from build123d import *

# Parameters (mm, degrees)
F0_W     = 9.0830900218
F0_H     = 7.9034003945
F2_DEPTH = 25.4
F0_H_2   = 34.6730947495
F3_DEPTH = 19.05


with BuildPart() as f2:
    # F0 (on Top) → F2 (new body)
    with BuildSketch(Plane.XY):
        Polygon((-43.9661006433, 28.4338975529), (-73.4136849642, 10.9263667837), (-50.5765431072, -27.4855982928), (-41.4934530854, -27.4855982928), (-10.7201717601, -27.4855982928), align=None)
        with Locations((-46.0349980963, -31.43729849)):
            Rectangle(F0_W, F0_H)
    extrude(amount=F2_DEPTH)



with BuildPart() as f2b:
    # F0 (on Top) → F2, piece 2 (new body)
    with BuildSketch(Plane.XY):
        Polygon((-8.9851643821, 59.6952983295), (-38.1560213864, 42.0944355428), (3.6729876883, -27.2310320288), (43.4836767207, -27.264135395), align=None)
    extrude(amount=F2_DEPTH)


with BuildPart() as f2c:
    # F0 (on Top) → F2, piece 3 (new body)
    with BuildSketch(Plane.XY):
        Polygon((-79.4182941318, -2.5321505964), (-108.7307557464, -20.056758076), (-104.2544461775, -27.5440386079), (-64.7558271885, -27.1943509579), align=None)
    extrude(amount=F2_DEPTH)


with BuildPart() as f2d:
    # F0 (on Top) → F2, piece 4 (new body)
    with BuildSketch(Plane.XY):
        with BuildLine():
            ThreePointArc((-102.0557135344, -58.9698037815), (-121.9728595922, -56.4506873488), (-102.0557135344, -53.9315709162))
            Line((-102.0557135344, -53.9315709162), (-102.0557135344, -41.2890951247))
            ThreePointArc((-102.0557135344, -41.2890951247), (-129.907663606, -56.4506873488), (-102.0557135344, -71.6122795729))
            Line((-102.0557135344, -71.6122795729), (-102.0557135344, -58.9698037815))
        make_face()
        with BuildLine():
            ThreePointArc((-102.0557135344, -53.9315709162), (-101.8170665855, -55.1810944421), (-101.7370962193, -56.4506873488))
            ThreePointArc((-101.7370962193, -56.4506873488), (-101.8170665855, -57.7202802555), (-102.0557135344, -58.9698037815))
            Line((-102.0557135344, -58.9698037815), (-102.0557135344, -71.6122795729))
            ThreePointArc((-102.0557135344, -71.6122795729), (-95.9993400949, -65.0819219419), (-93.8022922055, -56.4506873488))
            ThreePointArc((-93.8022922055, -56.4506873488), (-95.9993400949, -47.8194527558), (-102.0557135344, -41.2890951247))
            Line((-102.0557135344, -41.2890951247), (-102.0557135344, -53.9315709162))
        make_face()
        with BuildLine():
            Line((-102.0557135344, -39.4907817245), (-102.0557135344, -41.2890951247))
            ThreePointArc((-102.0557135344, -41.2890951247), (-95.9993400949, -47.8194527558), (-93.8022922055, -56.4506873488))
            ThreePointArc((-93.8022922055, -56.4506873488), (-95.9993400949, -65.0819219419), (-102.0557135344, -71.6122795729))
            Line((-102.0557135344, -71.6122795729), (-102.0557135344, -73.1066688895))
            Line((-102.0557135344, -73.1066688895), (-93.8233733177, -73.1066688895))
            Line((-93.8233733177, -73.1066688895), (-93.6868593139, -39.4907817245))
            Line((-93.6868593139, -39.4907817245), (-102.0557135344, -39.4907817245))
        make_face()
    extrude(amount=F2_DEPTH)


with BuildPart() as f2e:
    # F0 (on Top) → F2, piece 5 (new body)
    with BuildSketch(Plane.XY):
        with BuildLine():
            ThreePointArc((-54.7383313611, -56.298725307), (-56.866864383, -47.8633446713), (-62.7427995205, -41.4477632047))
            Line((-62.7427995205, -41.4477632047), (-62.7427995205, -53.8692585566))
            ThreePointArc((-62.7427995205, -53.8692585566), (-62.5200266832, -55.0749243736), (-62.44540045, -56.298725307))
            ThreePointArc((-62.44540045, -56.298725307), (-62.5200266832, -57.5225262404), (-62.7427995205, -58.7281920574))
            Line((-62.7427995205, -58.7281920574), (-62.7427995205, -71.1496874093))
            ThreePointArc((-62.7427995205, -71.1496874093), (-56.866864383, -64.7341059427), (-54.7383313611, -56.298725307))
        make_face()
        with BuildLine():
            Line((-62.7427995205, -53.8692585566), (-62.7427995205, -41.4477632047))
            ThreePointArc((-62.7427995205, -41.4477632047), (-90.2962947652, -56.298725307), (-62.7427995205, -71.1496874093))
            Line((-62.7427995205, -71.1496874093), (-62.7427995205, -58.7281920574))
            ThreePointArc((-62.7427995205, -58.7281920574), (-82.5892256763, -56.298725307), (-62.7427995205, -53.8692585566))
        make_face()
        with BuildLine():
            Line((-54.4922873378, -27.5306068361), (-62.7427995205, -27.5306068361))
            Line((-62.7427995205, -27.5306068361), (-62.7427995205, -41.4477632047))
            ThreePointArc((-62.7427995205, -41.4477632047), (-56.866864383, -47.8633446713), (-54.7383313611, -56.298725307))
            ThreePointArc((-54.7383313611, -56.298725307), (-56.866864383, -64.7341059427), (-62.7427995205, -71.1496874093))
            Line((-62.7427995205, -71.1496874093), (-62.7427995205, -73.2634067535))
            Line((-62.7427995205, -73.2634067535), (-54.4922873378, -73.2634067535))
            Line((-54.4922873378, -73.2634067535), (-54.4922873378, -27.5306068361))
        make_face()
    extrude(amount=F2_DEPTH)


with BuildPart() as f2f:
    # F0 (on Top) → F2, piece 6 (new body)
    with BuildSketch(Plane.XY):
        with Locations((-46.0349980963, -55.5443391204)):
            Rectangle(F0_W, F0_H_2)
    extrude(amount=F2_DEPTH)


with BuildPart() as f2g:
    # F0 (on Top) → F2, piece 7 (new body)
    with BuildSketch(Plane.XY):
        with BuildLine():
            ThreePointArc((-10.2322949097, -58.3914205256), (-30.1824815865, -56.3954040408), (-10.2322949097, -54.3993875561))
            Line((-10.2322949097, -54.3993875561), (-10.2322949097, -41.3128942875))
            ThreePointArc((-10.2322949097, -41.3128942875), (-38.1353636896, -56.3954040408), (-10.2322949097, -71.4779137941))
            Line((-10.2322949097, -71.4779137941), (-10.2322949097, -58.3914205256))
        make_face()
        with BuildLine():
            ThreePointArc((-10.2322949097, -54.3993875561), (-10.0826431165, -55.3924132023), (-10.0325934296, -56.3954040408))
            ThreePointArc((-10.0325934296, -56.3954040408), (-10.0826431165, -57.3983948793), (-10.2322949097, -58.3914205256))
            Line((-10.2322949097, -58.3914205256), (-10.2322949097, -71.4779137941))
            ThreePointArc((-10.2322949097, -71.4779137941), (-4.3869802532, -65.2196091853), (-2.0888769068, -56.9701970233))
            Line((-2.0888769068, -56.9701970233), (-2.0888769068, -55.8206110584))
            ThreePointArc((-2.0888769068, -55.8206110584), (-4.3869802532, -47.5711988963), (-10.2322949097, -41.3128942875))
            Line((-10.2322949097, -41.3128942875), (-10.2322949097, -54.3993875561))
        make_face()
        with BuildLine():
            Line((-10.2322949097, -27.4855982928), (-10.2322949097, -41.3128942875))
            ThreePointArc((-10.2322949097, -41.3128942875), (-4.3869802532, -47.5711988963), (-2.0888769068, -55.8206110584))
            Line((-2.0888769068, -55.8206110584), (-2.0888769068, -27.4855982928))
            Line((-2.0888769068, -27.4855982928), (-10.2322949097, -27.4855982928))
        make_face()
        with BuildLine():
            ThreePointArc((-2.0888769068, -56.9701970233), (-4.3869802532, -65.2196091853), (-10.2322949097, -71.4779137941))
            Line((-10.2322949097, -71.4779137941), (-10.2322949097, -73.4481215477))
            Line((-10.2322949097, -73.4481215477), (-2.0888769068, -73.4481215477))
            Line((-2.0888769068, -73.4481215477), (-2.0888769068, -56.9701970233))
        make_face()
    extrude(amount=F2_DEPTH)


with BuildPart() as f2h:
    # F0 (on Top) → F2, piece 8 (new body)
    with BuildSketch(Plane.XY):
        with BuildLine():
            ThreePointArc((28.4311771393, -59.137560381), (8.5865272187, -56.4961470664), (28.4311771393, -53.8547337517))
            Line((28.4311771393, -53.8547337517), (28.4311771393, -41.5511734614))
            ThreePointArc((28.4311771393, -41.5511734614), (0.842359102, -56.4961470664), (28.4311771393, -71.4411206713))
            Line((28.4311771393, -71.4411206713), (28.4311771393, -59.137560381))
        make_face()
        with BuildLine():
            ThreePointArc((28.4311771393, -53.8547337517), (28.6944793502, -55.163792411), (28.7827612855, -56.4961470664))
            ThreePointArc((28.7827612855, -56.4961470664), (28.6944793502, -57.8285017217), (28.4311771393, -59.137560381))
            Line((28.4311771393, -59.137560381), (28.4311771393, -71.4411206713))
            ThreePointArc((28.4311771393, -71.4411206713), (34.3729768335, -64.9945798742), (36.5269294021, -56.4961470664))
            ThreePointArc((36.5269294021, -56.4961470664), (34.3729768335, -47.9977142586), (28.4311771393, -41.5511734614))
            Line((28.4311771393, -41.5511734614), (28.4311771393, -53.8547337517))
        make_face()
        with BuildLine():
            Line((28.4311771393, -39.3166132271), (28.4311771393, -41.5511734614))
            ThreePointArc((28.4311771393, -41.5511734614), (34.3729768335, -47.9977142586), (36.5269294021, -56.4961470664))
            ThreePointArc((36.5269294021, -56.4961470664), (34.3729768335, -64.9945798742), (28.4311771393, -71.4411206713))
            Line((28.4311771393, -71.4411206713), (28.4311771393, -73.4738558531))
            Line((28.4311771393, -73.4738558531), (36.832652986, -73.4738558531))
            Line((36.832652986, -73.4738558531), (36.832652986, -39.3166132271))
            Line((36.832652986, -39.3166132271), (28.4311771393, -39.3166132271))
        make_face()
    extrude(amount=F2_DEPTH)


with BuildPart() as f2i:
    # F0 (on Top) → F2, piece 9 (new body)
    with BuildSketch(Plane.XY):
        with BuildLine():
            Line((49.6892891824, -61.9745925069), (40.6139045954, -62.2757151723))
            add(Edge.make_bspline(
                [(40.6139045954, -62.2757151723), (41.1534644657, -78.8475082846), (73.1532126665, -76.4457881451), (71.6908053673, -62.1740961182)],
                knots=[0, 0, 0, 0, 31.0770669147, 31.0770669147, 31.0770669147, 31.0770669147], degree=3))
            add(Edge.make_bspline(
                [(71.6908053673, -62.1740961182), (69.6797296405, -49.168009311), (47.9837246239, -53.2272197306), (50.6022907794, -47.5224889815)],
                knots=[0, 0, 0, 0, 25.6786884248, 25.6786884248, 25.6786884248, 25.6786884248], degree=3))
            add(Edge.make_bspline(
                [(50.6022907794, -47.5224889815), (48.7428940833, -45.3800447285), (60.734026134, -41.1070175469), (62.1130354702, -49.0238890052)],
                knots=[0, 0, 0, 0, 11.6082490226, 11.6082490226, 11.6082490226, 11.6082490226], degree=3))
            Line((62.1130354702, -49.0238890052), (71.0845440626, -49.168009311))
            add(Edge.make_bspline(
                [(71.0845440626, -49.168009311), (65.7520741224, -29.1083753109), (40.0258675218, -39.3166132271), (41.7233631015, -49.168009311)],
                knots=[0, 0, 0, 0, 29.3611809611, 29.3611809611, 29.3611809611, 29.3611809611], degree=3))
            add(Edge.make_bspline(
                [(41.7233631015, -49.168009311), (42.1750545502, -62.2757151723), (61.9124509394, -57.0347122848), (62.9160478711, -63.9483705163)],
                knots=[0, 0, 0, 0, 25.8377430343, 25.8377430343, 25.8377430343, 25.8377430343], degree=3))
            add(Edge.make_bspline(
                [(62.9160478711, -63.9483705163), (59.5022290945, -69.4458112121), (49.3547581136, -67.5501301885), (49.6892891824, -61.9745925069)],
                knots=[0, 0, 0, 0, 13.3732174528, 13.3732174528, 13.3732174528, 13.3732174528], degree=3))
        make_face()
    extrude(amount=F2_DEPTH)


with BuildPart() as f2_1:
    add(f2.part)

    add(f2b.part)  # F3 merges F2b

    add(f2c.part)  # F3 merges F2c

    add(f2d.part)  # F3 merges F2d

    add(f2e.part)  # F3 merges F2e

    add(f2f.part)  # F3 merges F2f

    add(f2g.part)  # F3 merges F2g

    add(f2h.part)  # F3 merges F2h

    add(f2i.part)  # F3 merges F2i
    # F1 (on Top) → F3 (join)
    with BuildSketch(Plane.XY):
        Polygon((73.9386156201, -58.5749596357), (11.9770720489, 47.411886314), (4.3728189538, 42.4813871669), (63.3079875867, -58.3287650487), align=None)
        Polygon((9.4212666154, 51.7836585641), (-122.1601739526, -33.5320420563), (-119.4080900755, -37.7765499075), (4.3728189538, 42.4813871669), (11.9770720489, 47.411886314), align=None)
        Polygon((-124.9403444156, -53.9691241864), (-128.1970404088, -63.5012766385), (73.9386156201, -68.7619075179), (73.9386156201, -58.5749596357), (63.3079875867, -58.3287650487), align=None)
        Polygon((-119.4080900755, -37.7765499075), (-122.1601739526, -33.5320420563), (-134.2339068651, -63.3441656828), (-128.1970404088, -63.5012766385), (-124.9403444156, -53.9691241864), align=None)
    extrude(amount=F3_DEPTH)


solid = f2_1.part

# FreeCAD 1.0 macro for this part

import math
import FreeCAD as App
import Part
import Sketcher
Q = App.Units.Quantity


def add_polygon(sketch, points):
    """Adds a closed chain of lines whose ends are joined by coincident constraints."""
    first, n = sketch.GeometryCount, len(points)
    for a, b in zip(points, points[1:] + points[:1]):
        sketch.addGeometry(Part.LineSegment(App.Vector(*a, 0), App.Vector(*b, 0)), False)
    for i in range(n):
        sketch.addConstraint(Sketcher.Constraint("Coincident", first + i, 2, first + (i + 1) % n, 1))

doc = App.newDocument("Part")
body = doc.addObject("PartDesign::Body", "Body")

# Sketch on XY plane
sketch1 = doc.addObject("Sketcher::SketchObject", "Sketch")
body.addObject(sketch1)
sketch1.AttachmentSupport = (doc.XY_Plane, [""])
sketch1.MapMode = "FlatFace"
add_polygon(sketch1, [(-44, 28), (-73, 11), (-51, -27), (-51, -35), (-41, -35), (-41, -27), (-11, -27)])  # lines 0-6
sketch1.addConstraint([
    Sketcher.Constraint("Vertical", 2),
    Sketcher.Constraint("Horizontal", 3),
    Sketcher.Constraint("Vertical", 4),
    Sketcher.Constraint("Horizontal", 5),
    Sketcher.Constraint("Perpendicular", 0, 1),
    Sketcher.Constraint("Parallel", 1, 6),
    Sketcher.Constraint("Horizontal", 1, 2, 4, 2),
    Sketcher.Constraint("DistanceY", 2, 2, 2, 1, 7.9034),
    Sketcher.Constraint("DistanceX", 0, 2, 1, 2, Q("0.8991001 in")),
    Sketcher.Constraint("DistanceX", 3, 1, 3, 2, 9.08309),
    Sketcher.Constraint("DistanceX", 5, 1, 5, 2, 30.773281),
    Sketcher.Constraint("DistanceY", 1, 2, -1, 1, 27.485598),
    Sketcher.Constraint("DistanceX", 6, 2, -1, 1, 43.966101),
    Sketcher.Constraint("Distance", 6, 65.05599),
])
pad1 = doc.addObject("PartDesign::Pad", "Pad")
body.addObject(pad1)
pad1.Profile = sketch1
pad1.Length = Q("1 in")
body2 = doc.addObject("PartDesign::Body", "Body001")

# Sketch on XY plane
sketch2 = doc.addObject("Sketcher::SketchObject", "Sketch001")
body2.addObject(sketch2)
sketch2.AttachmentSupport = (doc.getObject("XY_Plane001"), [""])
sketch2.MapMode = "FlatFace"
add_polygon(sketch2, [(-9, 60), (-38, 42), (4, -27), (43, -27)])  # lines 0-3
sketch2.addConstraint([
    Sketcher.Constraint("Perpendicular", 0, 1),
    Sketcher.Constraint("Parallel", 1, 3),
    Sketcher.Constraint("DistanceY", -1, 1, 3, 2, 59.695298),
    Sketcher.Constraint("DistanceX", 0, 2, 2, 2, 81.639698),
    Sketcher.Constraint("DistanceX", 0, 2, -1, 1, 38.156021),
    Sketcher.Constraint("DistanceX", 0, 2, 1, 2, 41.829009),
    Sketcher.Constraint("DistanceY", 2, 2, 0, 2, 69.358571),
    Sketcher.Constraint("DistanceY", 1, 2, 3, 2, 86.92633),
])
pad2 = doc.addObject("PartDesign::Pad", "Pad001")
body2.addObject(pad2)
pad2.Profile = sketch2
pad2.Length = Q("1 in")
body3 = doc.addObject("PartDesign::Body", "Body002")

# Sketch on XY plane
sketch3 = doc.addObject("Sketcher::SketchObject", "Sketch002")
body3.addObject(sketch3)
sketch3.AttachmentSupport = (doc.getObject("XY_Plane002"), [""])
sketch3.MapMode = "FlatFace"
add_polygon(sketch3, [(-79, -3), (-109, -20), (-104, -28), (-65, -27)])  # lines 0-3
sketch3.addConstraint([
    Sketcher.Constraint("Perpendicular", 0, 1),
    Sketcher.Constraint("DistanceY", 2, 2, 3, 2, 24.6622),
    Sketcher.Constraint("DistanceY", 0, 2, -1, 1, 20.056758),
    Sketcher.Constraint("DistanceY", 1, 2, -1, 1, 27.544039),
    Sketcher.Constraint("DistanceY", 2, 2, -1, 1, 27.194351),
    Sketcher.Constraint("DistanceX", 0, 2, 1, 2, 4.47631),
    Sketcher.Constraint("DistanceX", 1, 2, 2, 2, 39.498619),
    Sketcher.Constraint("DistanceX", 0, 2, -1, 1, 108.730756),
])
pad3 = doc.addObject("PartDesign::Pad", "Pad002")
body3.addObject(pad3)
pad3.Profile = sketch3
pad3.Length = Q("1 in")
body4 = doc.addObject("PartDesign::Body", "Body003")

# Sketch on XY plane
sketch4 = doc.addObject("Sketcher::SketchObject", "Sketch003")
body4.addObject(sketch4)
sketch4.AttachmentSupport = (doc.getObject("XY_Plane003"), [""])
sketch4.MapMode = "FlatFace"
sketch4.addGeometry([
    Part.ArcOfCircle(Part.Circle(App.Vector(-111.9, -56.5, 0), App.Vector(0, 0, 1), 18.1), math.radians(57), math.radians(303)),  # 0
    Part.LineSegment(App.Vector(-102.1, -71.6, 0), App.Vector(-102.1, -73.1, 0)),  # 1
    Part.LineSegment(App.Vector(-102.1, -73.1, 0), App.Vector(-93.8, -73.1, 0)),  # 2
    Part.LineSegment(App.Vector(-93.8, -73.1, 0), App.Vector(-93.7, -39.5, 0)),  # 3
    Part.LineSegment(App.Vector(-93.7, -39.5, 0), App.Vector(-102.1, -39.5, 0)),  # 4
    Part.LineSegment(App.Vector(-102.1, -39.5, 0), App.Vector(-102.1, -41.3, 0)),  # 5
    Part.ArcOfCircle(Part.Circle(App.Vector(-111.9, -56.5, 0), App.Vector(0, 0, 1), 10.1), math.radians(14), math.radians(346)),  # 6
    Part.ArcOfCircle(Part.Circle(App.Vector(-111.9, -56.5, 0), App.Vector(0, 0, 1), 10.1), math.radians(0), math.radians(14.42)),  # 7
    Part.ArcOfCircle(Part.Circle(App.Vector(-111.9, -56.5, 0), App.Vector(0, 0, 1), 10.1), math.radians(-14.42), math.radians(0)),  # 8
], False)
sketch4.addConstraint([
    Sketcher.Constraint("Coincident", 0, 2, 1, 1),
    Sketcher.Constraint("Coincident", 1, 2, 2, 1),
    Sketcher.Constraint("Coincident", 2, 2, 3, 1),
    Sketcher.Constraint("Coincident", 3, 2, 4, 1),
    Sketcher.Constraint("Coincident", 4, 2, 5, 1),
    Sketcher.Constraint("Coincident", 5, 2, 0, 1),
    Sketcher.Constraint("Tangent", 6, 1, 7, 2),
    Sketcher.Constraint("Tangent", 7, 1, 8, 2),
    Sketcher.Constraint("Tangent", 8, 1, 6, 2),
    Sketcher.Constraint("Vertical", 1),
    Sketcher.Constraint("Horizontal", 2),
    Sketcher.Constraint("Horizontal", 4),
    Sketcher.Constraint("Vertical", 5),
    Sketcher.Constraint("Coincident", 6, 3, 0, 3),
    Sketcher.Constraint("Horizontal", 8, 3, 7, 1),
    Sketcher.Constraint("Vertical", 1, 2, 4, 2),
    Sketcher.Constraint("Vertical", 5, 2, 6, 1),
    Sketcher.Constraint("Vertical", 6, 1, 8, 1),
    Sketcher.Constraint("Radius", 6, 10.117882),
    Sketcher.Constraint("Radius", 0, 18.052686),
    Sketcher.Constraint("DistanceX", 2, 1, 2, 2, 8.23234),
    Sketcher.Constraint("DistanceY", 1, 2, 1, 1, 1.494389),
    Sketcher.Constraint("DistanceX", 4, 2, 4, 1, 8.368854),
    Sketcher.Constraint("DistanceY", 5, 2, 5, 1, 1.798313),
    Sketcher.Constraint("DistanceY", 0, 2, -1, 1, 71.61228),
    Sketcher.Constraint("DistanceX", 3, 2, -1, 1, 93.686859),
    Sketcher.Constraint("DistanceY", 3, 2, -1, 1, 39.490782),
])
pad4 = doc.addObject("PartDesign::Pad", "Pad003")
body4.addObject(pad4)
pad4.Profile = sketch4
pad4.Length = Q("1 in")
body5 = doc.addObject("PartDesign::Body", "Body004")

# Sketch on XY plane
sketch5 = doc.addObject("Sketcher::SketchObject", "Sketch004")
body5.addObject(sketch5)
sketch5.AttachmentSupport = (doc.getObject("XY_Plane004"), [""])
sketch5.MapMode = "FlatFace"
sketch5.addGeometry([
    Part.ArcOfCircle(Part.Circle(App.Vector(-72.5, -56.3, 0), App.Vector(0, 0, 1), 17.8), math.radians(57), math.radians(303)),  # 0
    Part.LineSegment(App.Vector(-62.7, -71.1, 0), App.Vector(-62.7, -73.3, 0)),  # 1
    Part.LineSegment(App.Vector(-62.7, -73.3, 0), App.Vector(-54.5, -73.3, 0)),  # 2
    Part.LineSegment(App.Vector(-54.5, -73.3, 0), App.Vector(-54.5, -27.5, 0)),  # 3
    Part.LineSegment(App.Vector(-54.5, -27.5, 0), App.Vector(-62.7, -27.5, 0)),  # 4
    Part.LineSegment(App.Vector(-62.7, -27.5, 0), App.Vector(-62.7, -41.4, 0)),  # 5
    Part.ArcOfCircle(Part.Circle(App.Vector(-72.5, -56.3, 0), App.Vector(0, 0, 1), 10.1), math.radians(0), math.radians(13.96)),  # 6
    Part.ArcOfCircle(Part.Circle(App.Vector(-72.5, -56.3, 0), App.Vector(0, 0, 1), 10.1), math.radians(-13.96), math.radians(0)),  # 7
    Part.ArcOfCircle(Part.Circle(App.Vector(-72.5, -56.3, 0), App.Vector(0, 0, 1), 10.1), math.radians(14), math.radians(346)),  # 8
], False)
sketch5.addConstraint([
    Sketcher.Constraint("Coincident", 0, 2, 1, 1),
    Sketcher.Constraint("Coincident", 1, 2, 2, 1),
    Sketcher.Constraint("Coincident", 2, 2, 3, 1),
    Sketcher.Constraint("Coincident", 3, 2, 4, 1),
    Sketcher.Constraint("Coincident", 4, 2, 5, 1),
    Sketcher.Constraint("Coincident", 5, 2, 0, 1),
    Sketcher.Constraint("Tangent", 6, 1, 7, 2),
    Sketcher.Constraint("Tangent", 7, 1, 8, 2),
    Sketcher.Constraint("Tangent", 8, 1, 6, 2),
    Sketcher.Constraint("Vertical", 1),
    Sketcher.Constraint("Horizontal", 2),
    Sketcher.Constraint("Vertical", 3),
    Sketcher.Constraint("Horizontal", 4),
    Sketcher.Constraint("Vertical", 5),
    Sketcher.Constraint("Coincident", 6, 3, 0, 3),
    Sketcher.Constraint("Horizontal", 8, 3, 6, 1),
    Sketcher.Constraint("Vertical", 1, 2, 4, 2),
    Sketcher.Constraint("Vertical", 5, 2, 7, 1),
    Sketcher.Constraint("Vertical", 7, 1, 8, 1),
    Sketcher.Constraint("Radius", 0, 17.778982),
    Sketcher.Constraint("DistanceY", 3, 1, 3, 2, 45.7328),
    Sketcher.Constraint("Radius", 6, 10.071913),
    Sketcher.Constraint("DistanceY", 1, 2, 1, 1, 2.113719),
    Sketcher.Constraint("DistanceX", 0, 2, -1, 1, 62.7428),
    Sketcher.Constraint("DistanceX", 6, 1, -1, 1, 62.4454),
    Sketcher.Constraint("DistanceX", 2, 1, 2, 2, 8.250512),
    Sketcher.Constraint("DistanceY", 8, 1, -1, 1, 53.869259),
])
pad5 = doc.addObject("PartDesign::Pad", "Pad004")
body5.addObject(pad5)
pad5.Profile = sketch5
pad5.Length = Q("1 in")
body6 = doc.addObject("PartDesign::Body", "Body005")

# Sketch on XY plane
sketch6 = doc.addObject("Sketcher::SketchObject", "Sketch005")
body6.addObject(sketch6)
sketch6.AttachmentSupport = (doc.getObject("XY_Plane005"), [""])
sketch6.MapMode = "FlatFace"
add_polygon(sketch6, [(-51, -38), (-51, -73), (-41, -73), (-41, -38)])  # lines 0-3
sketch6.addConstraint([
    Sketcher.Constraint("Vertical", 0),
    Sketcher.Constraint("Horizontal", 1),
    Sketcher.Constraint("Vertical", 2),
    Sketcher.Constraint("Horizontal", 3),
    Sketcher.Constraint("DistanceX", 1, 1, 1, 2, 9.08309),
    Sketcher.Constraint("DistanceY", 0, 2, 0, 1, 34.673095),
    Sketcher.Constraint("DistanceY", 2, 2, -1, 1, 38.207792),
    Sketcher.Constraint("DistanceX", 0, 2, -1, 1, 50.576543),
])
pad6 = doc.addObject("PartDesign::Pad", "Pad005")
body6.addObject(pad6)
pad6.Profile = sketch6
pad6.Length = Q("1 in")
body7 = doc.addObject("PartDesign::Body", "Body006")

# Sketch on XY plane
sketch7 = doc.addObject("Sketcher::SketchObject", "Sketch006")
body7.addObject(sketch7)
sketch7.AttachmentSupport = (doc.getObject("XY_Plane006"), [""])
sketch7.MapMode = "FlatFace"
sketch7.addGeometry([
    Part.LineSegment(App.Vector(-2.1, -27.5, 0), App.Vector(-10.2, -27.5, 0)),  # 0
    Part.LineSegment(App.Vector(-10.2, -27.5, 0), App.Vector(-10.2, -41.3, 0)),  # 1
    Part.ArcOfCircle(Part.Circle(App.Vector(-20.1, -56.4, 0), App.Vector(0, 0, 1), 18), math.radians(57), math.radians(303)),  # 2
    Part.LineSegment(App.Vector(-10.2, -71.5, 0), App.Vector(-10.2, -73.4, 0)),  # 3
    Part.LineSegment(App.Vector(-10.2, -73.4, 0), App.Vector(-2.1, -73.4, 0)),  # 4
    Part.LineSegment(App.Vector(-2.1, -73.4, 0), App.Vector(-2.1, -27.5, 0)),  # 5
    Part.ArcOfCircle(Part.Circle(App.Vector(-20.1, -56.4, 0), App.Vector(0, 0, 1), 10.1), math.radians(11), math.radians(349)),  # 6
    Part.ArcOfCircle(Part.Circle(App.Vector(-20.1, -56.4, 0), App.Vector(0, 0, 1), 10.1), math.radians(0), math.radians(11.43)),  # 7
    Part.ArcOfCircle(Part.Circle(App.Vector(-20.1, -56.4, 0), App.Vector(0, 0, 1), 10.1), math.radians(-11.43), math.radians(0)),  # 8
], False)
sketch7.addConstraint([
    Sketcher.Constraint("Coincident", 0, 2, 1, 1),
    Sketcher.Constraint("Coincident", 1, 2, 2, 1),
    Sketcher.Constraint("Coincident", 2, 2, 3, 1),
    Sketcher.Constraint("Coincident", 3, 2, 4, 1),
    Sketcher.Constraint("Coincident", 4, 2, 5, 1),
    Sketcher.Constraint("Coincident", 5, 2, 0, 1),
    Sketcher.Constraint("Tangent", 6, 1, 7, 2),
    Sketcher.Constraint("Tangent", 7, 1, 8, 2),
    Sketcher.Constraint("Tangent", 8, 1, 6, 2),
    Sketcher.Constraint("Horizontal", 0),
    Sketcher.Constraint("Vertical", 1),
    Sketcher.Constraint("Vertical", 3),
    Sketcher.Constraint("Horizontal", 4),
    Sketcher.Constraint("Vertical", 5),
    Sketcher.Constraint("Coincident", 6, 3, 2, 3),
    Sketcher.Constraint("Horizontal", 8, 3, 7, 1),
    Sketcher.Constraint("Vertical", 1, 2, 2, 2),
    Sketcher.Constraint("Vertical", 3, 2, 6, 1),
    Sketcher.Constraint("Vertical", 6, 1, 8, 1),
    Sketcher.Constraint("Radius", 2, 18.027826),
    Sketcher.Constraint("Radius", 6, 10.074944),
    Sketcher.Constraint("DistanceX", 0, 2, 0, 1, 8.143418),
    Sketcher.Constraint("DistanceY", 0, 2, -1, 1, 27.485598),
    Sketcher.Constraint("DistanceX", 6, 1, 7, 1, 0.199701),
    Sketcher.Constraint("DistanceY", 1, 2, 1, 1, 13.827296),
    Sketcher.Constraint("DistanceY", 3, 2, 3, 1, 1.970208),
    Sketcher.Constraint("DistanceX", 2, 3, -1, 1, 20.107538),
])
pad7 = doc.addObject("PartDesign::Pad", "Pad006")
body7.addObject(pad7)
pad7.Profile = sketch7
pad7.Length = Q("1 in")
body8 = doc.addObject("PartDesign::Body", "Body007")

# Sketch on XY plane
sketch8 = doc.addObject("Sketcher::SketchObject", "Sketch007")
body8.addObject(sketch8)
sketch8.AttachmentSupport = (doc.getObject("XY_Plane007"), [""])
sketch8.MapMode = "FlatFace"
sketch8.addGeometry([
    Part.ArcOfCircle(Part.Circle(App.Vector(18.7, -56.5, 0), App.Vector(0, 0, 1), 17.8), math.radians(57), math.radians(303)),  # 0
    Part.LineSegment(App.Vector(28.4, -71.4, 0), App.Vector(28.4, -73.5, 0)),  # 1
    Part.LineSegment(App.Vector(28.4, -73.5, 0), App.Vector(36.8, -73.5, 0)),  # 2
    Part.LineSegment(App.Vector(36.8, -73.5, 0), App.Vector(36.8, -39.3, 0)),  # 3
    Part.LineSegment(App.Vector(36.8, -39.3, 0), App.Vector(28.4, -39.3, 0)),  # 4
    Part.LineSegment(App.Vector(28.4, -39.3, 0), App.Vector(28.4, -41.6, 0)),  # 5
    Part.ArcOfCircle(Part.Circle(App.Vector(18.7, -56.5, 0), App.Vector(0, 0, 1), 10.1), math.radians(15), math.radians(345)),  # 6
    Part.ArcOfCircle(Part.Circle(App.Vector(18.7, -56.5, 0), App.Vector(0, 0, 1), 10.1), math.radians(0), math.radians(15.16)),  # 7
    Part.ArcOfCircle(Part.Circle(App.Vector(18.7, -56.5, 0), App.Vector(0, 0, 1), 10.1), math.radians(-15.16), math.radians(0)),  # 8
], False)
sketch8.addConstraint([
    Sketcher.Constraint("Coincident", 0, 2, 1, 1),
    Sketcher.Constraint("Coincident", 1, 2, 2, 1),
    Sketcher.Constraint("Coincident", 2, 2, 3, 1),
    Sketcher.Constraint("Coincident", 3, 2, 4, 1),
    Sketcher.Constraint("Coincident", 4, 2, 5, 1),
    Sketcher.Constraint("Coincident", 5, 2, 0, 1),
    Sketcher.Constraint("Tangent", 6, 1, 7, 2),
    Sketcher.Constraint("Tangent", 7, 1, 8, 2),
    Sketcher.Constraint("Tangent", 8, 1, 6, 2),
    Sketcher.Constraint("Vertical", 1),
    Sketcher.Constraint("Horizontal", 2),
    Sketcher.Constraint("Vertical", 3),
    Sketcher.Constraint("Horizontal", 4),
    Sketcher.Constraint("Vertical", 5),
    Sketcher.Constraint("Coincident", 6, 3, 0, 3),
    Sketcher.Constraint("Horizontal", 8, 3, 7, 1),
    Sketcher.Constraint("Vertical", 1, 2, 4, 2),
    Sketcher.Constraint("Vertical", 5, 2, 6, 1),
    Sketcher.Constraint("Vertical", 6, 1, 8, 1),
    Sketcher.Constraint("Radius", 0, 17.842285),
    Sketcher.Constraint("Radius", 6, 10.098117),
    Sketcher.Constraint("DistanceY", 5, 2, 5, 1, 2.23456),
    Sketcher.Constraint("DistanceX", 2, 1, 2, 2, 8.401476),
    Sketcher.Constraint("DistanceY", 1, 2, 1, 1, 2.032735),
    Sketcher.Constraint("DistanceY", 3, 1, 3, 2, 34.157243),
    Sketcher.Constraint("DistanceY", 0, 2, -1, 1, 71.441121),
    Sketcher.Constraint("DistanceX", -1, 1, 7, 1, 28.782761),
])
pad8 = doc.addObject("PartDesign::Pad", "Pad007")
body8.addObject(pad8)
pad8.Profile = sketch8
pad8.Length = Q("1 in")
body9 = doc.addObject("PartDesign::Body", "Body008")

# Sketch on XY plane
sketch9 = doc.addObject("Sketcher::SketchObject", "Sketch008")
body9.addObject(sketch9)
sketch9.AttachmentSupport = (doc.getObject("XY_Plane008"), [""])
sketch9.MapMode = "FlatFace"
sketch9.addGeometry([
    Part.LineSegment(App.Vector(49.689289, -61.974593, 0), App.Vector(40.613905, -62.275715, 0)),  # 0
    Part.BSplineCurve([App.Vector(40.613905, -62.275715, 0), App.Vector(41.153464, -78.847508, 0), App.Vector(73.153213, -76.445788, 0), App.Vector(71.690805, -62.174096, 0)], [4, 4], [0, 31.077066915], False, 3, [1, 1, 1, 1], False),  # 1
    Part.BSplineCurve([App.Vector(71.690805, -62.174096, 0), App.Vector(69.67973, -49.168009, 0), App.Vector(47.983725, -53.22722, 0), App.Vector(50.602291, -47.522489, 0)], [4, 4], [0, 25.678688425], False, 3, [1, 1, 1, 1], False),  # 2
    Part.BSplineCurve([App.Vector(50.602291, -47.522489, 0), App.Vector(48.742894, -45.380045, 0), App.Vector(60.734026, -41.107018, 0), App.Vector(62.113035, -49.023889, 0)], [4, 4], [0, 11.608249023], False, 3, [1, 1, 1, 1], False),  # 3
    Part.LineSegment(App.Vector(62.113035, -49.023889, 0), App.Vector(71.084544, -49.168009, 0)),  # 4
    Part.BSplineCurve([App.Vector(71.084544, -49.168009, 0), App.Vector(65.752074, -29.108375, 0), App.Vector(40.025868, -39.316613, 0), App.Vector(41.723363, -49.168009, 0)], [4, 4], [0, 29.361180961], False, 3, [1, 1, 1, 1], False),  # 5
    Part.BSplineCurve([App.Vector(41.723363, -49.168009, 0), App.Vector(42.175055, -62.275715, 0), App.Vector(61.912451, -57.034712, 0), App.Vector(62.916048, -63.948371, 0)], [4, 4], [0, 25.837743034], False, 3, [1, 1, 1, 1], False),  # 6
    Part.BSplineCurve([App.Vector(62.916048, -63.948371, 0), App.Vector(59.502229, -69.445811, 0), App.Vector(49.354758, -67.55013, 0), App.Vector(49.689289, -61.974593, 0)], [4, 4], [0, 13.373217453], False, 3, [1, 1, 1, 1], False),  # 7
], False)
sketch9.addConstraint([
    Sketcher.Constraint("Block", 1),
    Sketcher.Constraint("Block", 2),
    Sketcher.Constraint("Block", 3),
    Sketcher.Constraint("Block", 5),
    Sketcher.Constraint("Block", 6),
    Sketcher.Constraint("Block", 7),
    Sketcher.Constraint("Coincident", 0, 2, 1, 1),
    Sketcher.Constraint("Coincident", 3, 2, 4, 1),
    Sketcher.Constraint("Coincident", 4, 2, 5, 1),
    Sketcher.Constraint("Coincident", 7, 2, 0, 1),
])
pad9 = doc.addObject("PartDesign::Pad", "Pad008")
body9.addObject(pad9)
pad9.Profile = sketch9
pad9.Length = Q("1 in")
body.AllowCompound = True
doc.recompute()

boolean = doc.addObject("PartDesign::Boolean", "Boolean")
body.addObject(boolean)
boolean.Type = "Fuse"
boolean.addObjects([body2])
doc.recompute()

boolean2 = doc.addObject("PartDesign::Boolean", "Boolean001")
body.addObject(boolean2)
boolean2.Type = "Fuse"
boolean2.addObjects([body3])
doc.recompute()

boolean3 = doc.addObject("PartDesign::Boolean", "Boolean002")
body.addObject(boolean3)
boolean3.Type = "Fuse"
boolean3.addObjects([body4])
doc.recompute()

boolean4 = doc.addObject("PartDesign::Boolean", "Boolean003")
body.addObject(boolean4)
boolean4.Type = "Fuse"
boolean4.addObjects([body5])
doc.recompute()

boolean5 = doc.addObject("PartDesign::Boolean", "Boolean004")
body.addObject(boolean5)
boolean5.Type = "Fuse"
boolean5.addObjects([body6])
doc.recompute()

boolean6 = doc.addObject("PartDesign::Boolean", "Boolean005")
body.addObject(boolean6)
boolean6.Type = "Fuse"
boolean6.addObjects([body7])
doc.recompute()

boolean7 = doc.addObject("PartDesign::Boolean", "Boolean006")
body.addObject(boolean7)
boolean7.Type = "Fuse"
boolean7.addObjects([body8])
doc.recompute()

boolean8 = doc.addObject("PartDesign::Boolean", "Boolean007")
body.addObject(boolean8)
boolean8.Type = "Fuse"
boolean8.addObjects([body9])

# Sketch on XY plane
sketch10 = doc.addObject("Sketcher::SketchObject", "Sketch009")
body.addObject(sketch10)
sketch10.AttachmentSupport = (doc.XY_Plane, [""])
sketch10.MapMode = "FlatFace"
add_polygon(sketch10, [(74, -59), (9, 52), (-122, -34), (-134, -63), (-128, -64), (74, -69)])  # lines 0-5
add_polygon(sketch10, [(-119, -38), (4, 42), (63, -58), (-125, -54)])  # lines 6-9
sketch10.addConstraint([
    Sketcher.Constraint("Vertical", 5),
    Sketcher.Constraint("Parallel", 3, 4),
    Sketcher.Constraint("Parallel", 1, 6),
    Sketcher.Constraint("Parallel", 0, 7),
    Sketcher.Constraint("Distance", 4, 202.204099),
    Sketcher.Constraint("DistanceY", 1, 2, 0, 2, 85.315701),
    Sketcher.Constraint("Distance", 2, 32.164231),
    Sketcher.Constraint("Distance", 3, 6.038911),
    Sketcher.Constraint("Distance", 6, 147.523049),
    Sketcher.Constraint("Distance", 7, 116.77346),
    Sketcher.Constraint("DistanceY", 5, 1, 5, 2, 10.186948),
    Sketcher.Constraint("DistanceY", -1, 1, 0, 2, 51.783659),
    Sketcher.Constraint("DistanceX", 3, 2, -1, 1, 128.19704),
    Sketcher.Constraint("DistanceY", 5, 2, -1, 1, 58.57496),
    Sketcher.Constraint("DistanceX", -1, 1, 6, 2, 4.372819),
    Sketcher.Constraint("DistanceX", 9, 2, -1, 1, 119.40809),
    Sketcher.Constraint("DistanceY", 9, 2, -1, 1, 37.77655),
    Sketcher.Constraint("DistanceY", 3, 2, 2, 2, 0.157111),
    Sketcher.Constraint("DistanceY", 2, 2, 8, 2, 9.375041),
    Sketcher.Constraint("DistanceX", 8, 2, 1, 2, 2.78017),
])
pad10 = doc.addObject("PartDesign::Pad", "Pad009")
body.addObject(pad10)
pad10.Profile = sketch10
pad10.Length = Q("0.75 in")

doc.recompute()
